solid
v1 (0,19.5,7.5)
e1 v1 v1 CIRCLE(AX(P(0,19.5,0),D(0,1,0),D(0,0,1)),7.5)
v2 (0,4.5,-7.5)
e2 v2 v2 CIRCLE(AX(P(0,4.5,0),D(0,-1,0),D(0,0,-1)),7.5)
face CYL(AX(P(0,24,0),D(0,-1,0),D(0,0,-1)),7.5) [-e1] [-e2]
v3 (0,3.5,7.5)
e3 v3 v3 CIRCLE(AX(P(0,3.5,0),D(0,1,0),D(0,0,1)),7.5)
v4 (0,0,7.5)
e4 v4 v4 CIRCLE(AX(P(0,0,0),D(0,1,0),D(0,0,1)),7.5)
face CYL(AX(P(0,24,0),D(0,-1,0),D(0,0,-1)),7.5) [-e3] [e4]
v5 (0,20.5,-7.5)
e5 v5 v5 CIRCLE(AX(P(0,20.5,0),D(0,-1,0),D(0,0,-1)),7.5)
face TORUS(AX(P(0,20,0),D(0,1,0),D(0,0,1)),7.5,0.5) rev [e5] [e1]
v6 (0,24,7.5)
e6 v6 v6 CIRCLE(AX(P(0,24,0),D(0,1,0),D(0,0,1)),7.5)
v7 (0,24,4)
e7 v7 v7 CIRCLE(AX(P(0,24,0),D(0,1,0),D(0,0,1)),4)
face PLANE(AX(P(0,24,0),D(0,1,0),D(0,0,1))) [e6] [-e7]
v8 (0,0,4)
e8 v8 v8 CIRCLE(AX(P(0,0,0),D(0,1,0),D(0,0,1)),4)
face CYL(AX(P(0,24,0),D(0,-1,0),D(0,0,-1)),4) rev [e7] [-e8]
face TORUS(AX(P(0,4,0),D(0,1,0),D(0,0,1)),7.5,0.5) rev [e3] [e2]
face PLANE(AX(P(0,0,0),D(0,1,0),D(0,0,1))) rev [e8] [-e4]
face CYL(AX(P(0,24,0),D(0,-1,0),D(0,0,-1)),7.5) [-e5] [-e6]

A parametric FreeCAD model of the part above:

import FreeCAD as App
import Part
import Sketcher

V = App.Vector

doc = App.newDocument("Part")
body = doc.addObject("PartDesign::Body", "Body")

sketch1 = body.newObject("Sketcher::SketchObject", "Sketch")
sketch1.AttachmentSupport = (doc.getObject("XZ_Plane"), [""])
sketch1.MapMode = "FlatFace"
sketch1.addGeometry(Part.Circle(V(0, 0, 0), V(0, 0, 1), 7.5), False)
sketch1.addGeometry(Part.Circle(V(0, 0, 0), V(0, 0, 1), 4), False)
sketch1.addConstraint(Sketcher.Constraint("Coincident", 0, 3, -1, 1))
sketch1.addConstraint(Sketcher.Constraint("Coincident", 1, 3, -1, 1))
sketch1.addConstraint(Sketcher.Constraint("Diameter", 0, 15.0))
sketch1.addConstraint(Sketcher.Constraint("Diameter", 1, 8.0))
pad1 = body.newObject("PartDesign::Pad", "Pad")
pad1.Profile = sketch1
pad1.Length = 24
pad1.Reversed = True

sketch2 = body.newObject("Sketcher::SketchObject", "Sketch001")
sketch2.AttachmentSupport = (doc.getObject("XY_Plane"), [""])
sketch2.MapMode = "FlatFace"
sketch2.addGeometry(Part.Circle(V(7.5, 4, 0), V(0, 0, 1), 0.5), False)
sketch2.addGeometry(Part.Circle(V(7.5, 20, 0), V(0, 0, 1), 0.5), False)
sketch2.addConstraint(Sketcher.Constraint("Equal", 0, 1))
sketch2.addConstraint(Sketcher.Constraint("Vertical", 0, 3, 1, 3))
sketch2.addConstraint(Sketcher.Constraint("Diameter", 0, 1.0))
sketch2.addConstraint(Sketcher.Constraint("DistanceY", -1, 1, 0, 3, 4.0))
sketch2.addConstraint(Sketcher.Constraint("DistanceY", -1, 1, 1, 3, 20.0))
sketch2.addConstraint(Sketcher.Constraint("DistanceX", -1, 1, 0, 3, 7.5))
groove = body.newObject("PartDesign::Groove", "Groove")
groove.Profile = sketch2
groove.ReferenceAxis = (sketch2, ["V_Axis"])
groove.Angle = 360

doc.recompute()
